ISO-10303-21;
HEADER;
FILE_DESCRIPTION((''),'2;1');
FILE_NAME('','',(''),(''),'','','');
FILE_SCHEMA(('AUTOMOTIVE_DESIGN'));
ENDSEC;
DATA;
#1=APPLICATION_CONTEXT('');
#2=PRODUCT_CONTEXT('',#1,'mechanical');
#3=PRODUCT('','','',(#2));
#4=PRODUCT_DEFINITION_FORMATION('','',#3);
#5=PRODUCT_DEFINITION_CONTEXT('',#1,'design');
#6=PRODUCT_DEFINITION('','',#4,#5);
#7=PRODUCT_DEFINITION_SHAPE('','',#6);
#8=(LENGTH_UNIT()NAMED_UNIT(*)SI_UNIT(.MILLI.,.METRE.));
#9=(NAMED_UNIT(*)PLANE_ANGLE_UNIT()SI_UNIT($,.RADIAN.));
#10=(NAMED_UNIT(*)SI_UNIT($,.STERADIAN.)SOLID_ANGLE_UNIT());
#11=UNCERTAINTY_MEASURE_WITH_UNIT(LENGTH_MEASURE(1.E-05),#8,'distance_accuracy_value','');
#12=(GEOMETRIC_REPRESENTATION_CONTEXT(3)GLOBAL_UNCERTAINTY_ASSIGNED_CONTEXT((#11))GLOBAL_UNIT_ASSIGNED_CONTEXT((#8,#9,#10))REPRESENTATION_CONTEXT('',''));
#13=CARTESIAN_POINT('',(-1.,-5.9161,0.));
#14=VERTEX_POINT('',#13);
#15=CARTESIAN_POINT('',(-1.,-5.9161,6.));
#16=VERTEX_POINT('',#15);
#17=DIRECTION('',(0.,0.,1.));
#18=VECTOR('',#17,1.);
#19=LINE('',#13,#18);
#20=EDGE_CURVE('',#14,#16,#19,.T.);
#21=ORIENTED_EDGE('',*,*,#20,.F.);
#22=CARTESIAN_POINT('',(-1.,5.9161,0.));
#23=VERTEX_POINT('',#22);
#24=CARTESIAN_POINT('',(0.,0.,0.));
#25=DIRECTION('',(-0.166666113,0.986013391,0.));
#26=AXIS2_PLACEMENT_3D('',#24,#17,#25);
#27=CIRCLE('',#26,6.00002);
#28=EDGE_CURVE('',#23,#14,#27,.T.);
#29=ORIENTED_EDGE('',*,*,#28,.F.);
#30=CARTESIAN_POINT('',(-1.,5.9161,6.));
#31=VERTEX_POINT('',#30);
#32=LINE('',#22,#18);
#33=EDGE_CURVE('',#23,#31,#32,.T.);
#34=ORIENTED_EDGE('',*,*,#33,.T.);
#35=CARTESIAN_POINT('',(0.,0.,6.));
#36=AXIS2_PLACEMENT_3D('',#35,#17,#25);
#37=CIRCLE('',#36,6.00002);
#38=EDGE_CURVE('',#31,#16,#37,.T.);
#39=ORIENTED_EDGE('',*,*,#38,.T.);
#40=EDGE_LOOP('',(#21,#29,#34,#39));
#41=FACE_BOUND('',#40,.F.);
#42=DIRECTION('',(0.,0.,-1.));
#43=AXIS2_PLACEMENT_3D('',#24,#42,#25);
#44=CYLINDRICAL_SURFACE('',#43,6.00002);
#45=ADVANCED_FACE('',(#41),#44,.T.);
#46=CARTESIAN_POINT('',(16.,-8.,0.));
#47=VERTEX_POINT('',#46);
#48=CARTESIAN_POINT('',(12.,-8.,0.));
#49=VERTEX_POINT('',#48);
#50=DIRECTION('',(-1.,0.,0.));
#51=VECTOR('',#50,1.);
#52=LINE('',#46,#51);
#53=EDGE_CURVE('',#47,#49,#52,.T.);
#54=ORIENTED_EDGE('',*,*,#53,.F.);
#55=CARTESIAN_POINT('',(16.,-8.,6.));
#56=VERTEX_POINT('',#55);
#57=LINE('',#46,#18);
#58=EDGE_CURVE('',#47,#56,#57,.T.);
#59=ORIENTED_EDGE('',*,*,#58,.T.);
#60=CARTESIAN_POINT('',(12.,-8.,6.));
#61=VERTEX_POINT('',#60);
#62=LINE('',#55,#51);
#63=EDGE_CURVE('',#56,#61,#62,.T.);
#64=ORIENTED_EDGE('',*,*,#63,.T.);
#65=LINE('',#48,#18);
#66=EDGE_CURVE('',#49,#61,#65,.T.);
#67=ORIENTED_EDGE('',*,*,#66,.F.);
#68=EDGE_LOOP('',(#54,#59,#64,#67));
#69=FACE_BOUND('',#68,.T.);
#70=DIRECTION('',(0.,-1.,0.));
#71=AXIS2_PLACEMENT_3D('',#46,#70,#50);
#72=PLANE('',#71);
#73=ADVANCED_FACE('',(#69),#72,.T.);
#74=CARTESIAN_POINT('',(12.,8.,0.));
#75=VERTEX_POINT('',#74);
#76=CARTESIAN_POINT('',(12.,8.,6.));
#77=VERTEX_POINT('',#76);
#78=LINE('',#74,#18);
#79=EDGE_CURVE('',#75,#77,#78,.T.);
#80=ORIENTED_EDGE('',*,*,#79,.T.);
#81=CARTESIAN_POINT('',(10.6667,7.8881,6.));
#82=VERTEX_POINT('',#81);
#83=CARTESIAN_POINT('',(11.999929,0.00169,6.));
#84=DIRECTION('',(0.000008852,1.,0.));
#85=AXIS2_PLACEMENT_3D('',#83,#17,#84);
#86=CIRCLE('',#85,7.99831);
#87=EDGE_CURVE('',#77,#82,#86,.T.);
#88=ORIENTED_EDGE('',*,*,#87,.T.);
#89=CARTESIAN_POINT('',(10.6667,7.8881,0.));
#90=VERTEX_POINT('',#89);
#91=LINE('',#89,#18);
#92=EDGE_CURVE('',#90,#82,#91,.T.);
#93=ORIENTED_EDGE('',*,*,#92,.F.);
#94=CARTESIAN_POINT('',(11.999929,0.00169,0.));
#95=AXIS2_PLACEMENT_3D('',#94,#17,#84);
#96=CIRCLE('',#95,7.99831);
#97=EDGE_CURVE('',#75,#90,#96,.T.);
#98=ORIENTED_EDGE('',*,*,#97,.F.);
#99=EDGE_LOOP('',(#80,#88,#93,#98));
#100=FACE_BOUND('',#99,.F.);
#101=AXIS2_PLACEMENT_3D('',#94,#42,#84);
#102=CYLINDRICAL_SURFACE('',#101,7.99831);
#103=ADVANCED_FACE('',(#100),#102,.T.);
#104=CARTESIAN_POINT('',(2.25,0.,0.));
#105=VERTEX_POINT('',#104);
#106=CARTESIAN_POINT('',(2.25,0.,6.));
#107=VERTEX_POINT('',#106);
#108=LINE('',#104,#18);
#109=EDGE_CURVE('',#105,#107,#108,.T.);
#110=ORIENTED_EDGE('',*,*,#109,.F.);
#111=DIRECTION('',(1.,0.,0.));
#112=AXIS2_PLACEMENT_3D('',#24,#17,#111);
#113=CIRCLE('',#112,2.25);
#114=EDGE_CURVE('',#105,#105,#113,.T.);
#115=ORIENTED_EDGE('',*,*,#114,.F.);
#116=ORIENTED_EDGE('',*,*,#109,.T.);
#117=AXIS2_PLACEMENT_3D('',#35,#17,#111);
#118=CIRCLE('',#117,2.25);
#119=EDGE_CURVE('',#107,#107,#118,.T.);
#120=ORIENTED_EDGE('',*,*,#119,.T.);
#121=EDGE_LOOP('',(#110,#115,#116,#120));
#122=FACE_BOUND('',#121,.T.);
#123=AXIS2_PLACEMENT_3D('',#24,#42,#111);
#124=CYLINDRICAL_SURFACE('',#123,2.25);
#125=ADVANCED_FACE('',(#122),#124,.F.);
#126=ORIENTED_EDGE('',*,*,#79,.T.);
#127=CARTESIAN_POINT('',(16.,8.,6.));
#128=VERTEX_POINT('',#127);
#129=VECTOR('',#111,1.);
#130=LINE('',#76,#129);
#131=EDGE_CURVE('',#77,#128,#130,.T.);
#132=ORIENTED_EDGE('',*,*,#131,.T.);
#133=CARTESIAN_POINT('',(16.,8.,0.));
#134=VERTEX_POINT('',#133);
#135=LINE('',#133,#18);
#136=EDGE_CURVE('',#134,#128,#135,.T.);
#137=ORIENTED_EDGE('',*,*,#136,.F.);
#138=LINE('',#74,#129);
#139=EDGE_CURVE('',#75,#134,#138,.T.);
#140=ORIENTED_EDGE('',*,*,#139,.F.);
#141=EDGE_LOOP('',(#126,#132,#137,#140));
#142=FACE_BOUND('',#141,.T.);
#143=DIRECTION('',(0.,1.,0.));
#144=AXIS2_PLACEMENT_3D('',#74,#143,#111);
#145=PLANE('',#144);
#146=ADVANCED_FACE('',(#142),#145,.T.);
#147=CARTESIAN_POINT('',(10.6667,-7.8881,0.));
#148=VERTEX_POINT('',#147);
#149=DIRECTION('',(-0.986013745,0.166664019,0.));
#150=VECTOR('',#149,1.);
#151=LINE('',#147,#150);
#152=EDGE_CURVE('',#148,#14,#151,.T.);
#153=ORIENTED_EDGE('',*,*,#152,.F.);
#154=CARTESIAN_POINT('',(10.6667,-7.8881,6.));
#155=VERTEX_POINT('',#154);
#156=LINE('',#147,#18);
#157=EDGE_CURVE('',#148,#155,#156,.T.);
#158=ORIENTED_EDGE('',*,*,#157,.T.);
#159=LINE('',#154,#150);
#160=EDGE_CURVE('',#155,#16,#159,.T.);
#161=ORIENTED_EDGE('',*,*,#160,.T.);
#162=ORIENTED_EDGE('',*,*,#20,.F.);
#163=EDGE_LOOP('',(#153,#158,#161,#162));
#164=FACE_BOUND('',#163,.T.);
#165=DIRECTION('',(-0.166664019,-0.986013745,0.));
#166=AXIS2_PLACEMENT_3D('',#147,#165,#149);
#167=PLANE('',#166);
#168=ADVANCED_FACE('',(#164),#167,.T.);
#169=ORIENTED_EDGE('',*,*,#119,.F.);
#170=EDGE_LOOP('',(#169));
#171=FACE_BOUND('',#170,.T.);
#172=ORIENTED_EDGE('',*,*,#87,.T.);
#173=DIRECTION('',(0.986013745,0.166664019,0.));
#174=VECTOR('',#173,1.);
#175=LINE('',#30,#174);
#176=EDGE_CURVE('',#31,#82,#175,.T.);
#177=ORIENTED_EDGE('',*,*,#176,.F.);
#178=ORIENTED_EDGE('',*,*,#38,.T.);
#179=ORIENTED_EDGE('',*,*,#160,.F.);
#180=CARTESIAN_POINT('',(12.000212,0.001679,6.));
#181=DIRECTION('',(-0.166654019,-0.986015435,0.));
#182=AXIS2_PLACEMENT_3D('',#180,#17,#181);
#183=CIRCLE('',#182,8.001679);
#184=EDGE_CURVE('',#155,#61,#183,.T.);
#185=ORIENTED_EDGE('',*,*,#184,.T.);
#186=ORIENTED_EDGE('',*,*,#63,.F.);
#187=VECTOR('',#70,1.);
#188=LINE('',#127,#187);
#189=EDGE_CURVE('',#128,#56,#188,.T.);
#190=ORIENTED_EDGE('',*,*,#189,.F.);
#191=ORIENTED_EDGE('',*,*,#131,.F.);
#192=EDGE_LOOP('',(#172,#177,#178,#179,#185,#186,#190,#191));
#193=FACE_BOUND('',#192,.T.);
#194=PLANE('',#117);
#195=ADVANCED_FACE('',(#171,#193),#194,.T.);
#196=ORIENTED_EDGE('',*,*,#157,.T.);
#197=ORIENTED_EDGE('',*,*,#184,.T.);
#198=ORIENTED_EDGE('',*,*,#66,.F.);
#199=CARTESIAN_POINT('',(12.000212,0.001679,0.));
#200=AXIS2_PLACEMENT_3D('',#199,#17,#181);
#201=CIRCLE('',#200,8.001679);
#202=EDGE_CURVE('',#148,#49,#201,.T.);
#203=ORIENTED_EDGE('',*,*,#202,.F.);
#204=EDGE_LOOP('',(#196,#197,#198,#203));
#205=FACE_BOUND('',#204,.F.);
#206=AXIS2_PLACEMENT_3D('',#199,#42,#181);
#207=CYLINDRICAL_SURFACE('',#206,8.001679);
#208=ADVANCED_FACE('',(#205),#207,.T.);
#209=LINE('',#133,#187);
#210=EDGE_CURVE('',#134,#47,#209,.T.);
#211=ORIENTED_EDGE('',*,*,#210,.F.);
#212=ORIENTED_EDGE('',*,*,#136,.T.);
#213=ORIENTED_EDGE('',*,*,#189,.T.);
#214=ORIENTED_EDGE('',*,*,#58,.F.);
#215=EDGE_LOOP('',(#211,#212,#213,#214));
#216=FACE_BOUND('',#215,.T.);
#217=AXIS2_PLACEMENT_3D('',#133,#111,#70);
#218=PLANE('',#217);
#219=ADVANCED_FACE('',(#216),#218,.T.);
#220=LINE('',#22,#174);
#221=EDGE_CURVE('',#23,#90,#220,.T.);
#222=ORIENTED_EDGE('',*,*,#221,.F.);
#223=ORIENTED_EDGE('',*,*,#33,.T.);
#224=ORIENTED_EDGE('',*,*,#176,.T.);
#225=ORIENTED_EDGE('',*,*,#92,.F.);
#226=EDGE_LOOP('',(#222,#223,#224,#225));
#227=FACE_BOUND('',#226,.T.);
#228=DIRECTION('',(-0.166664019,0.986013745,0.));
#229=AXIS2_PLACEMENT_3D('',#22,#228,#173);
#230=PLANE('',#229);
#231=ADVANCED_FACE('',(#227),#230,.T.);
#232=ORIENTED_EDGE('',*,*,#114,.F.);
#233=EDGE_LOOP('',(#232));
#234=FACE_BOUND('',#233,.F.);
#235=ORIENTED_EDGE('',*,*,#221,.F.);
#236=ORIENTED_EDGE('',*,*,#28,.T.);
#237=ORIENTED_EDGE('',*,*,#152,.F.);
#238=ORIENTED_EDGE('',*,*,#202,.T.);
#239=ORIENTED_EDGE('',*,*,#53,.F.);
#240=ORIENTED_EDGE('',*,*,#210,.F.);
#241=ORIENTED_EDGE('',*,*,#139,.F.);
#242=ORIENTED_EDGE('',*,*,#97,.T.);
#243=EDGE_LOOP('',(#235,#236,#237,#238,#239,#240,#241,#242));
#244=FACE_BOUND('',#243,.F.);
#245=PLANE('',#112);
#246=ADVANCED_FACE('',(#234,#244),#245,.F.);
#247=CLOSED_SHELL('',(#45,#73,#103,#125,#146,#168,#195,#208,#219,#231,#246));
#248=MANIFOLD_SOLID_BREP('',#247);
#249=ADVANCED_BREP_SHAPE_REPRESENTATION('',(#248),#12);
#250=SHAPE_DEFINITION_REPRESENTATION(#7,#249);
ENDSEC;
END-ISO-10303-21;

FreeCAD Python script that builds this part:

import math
import FreeCAD as App
import Part
import Sketcher
from FreeCAD import Vector

doc = App.newDocument("Part")
body = doc.addObject("PartDesign::Body", "Body")

sketch1 = doc.addObject("Sketcher::SketchObject", "Sketch")
body.addObject(sketch1)
sketch1.AttachmentSupport = (doc.XY_Plane, [""])
sketch1.MapMode = "FlatFace"
sketch1.addGeometry([
    Part.LineSegment(Vector(10.6667, 7.8881, 0), Vector(-1, 5.9161, 0)),
    Part.ArcOfCircle(Part.Circle(Vector(0, 0, 0), Vector(0, 0, 1), 6.00002), math.radians(99.594036), math.radians(260.405964)),
    Part.LineSegment(Vector(-1, -5.9161, 0), Vector(10.6667, -7.8881, 0)),
    Part.ArcOfCircle(Part.Circle(Vector(12.000212, 0.001679, 0), Vector(0, 0, 1), 8.001679), math.radians(-99.593333), math.radians(-90.001518)),
    Part.LineSegment(Vector(12, -8, 0), Vector(16, -8, 0)),
    Part.LineSegment(Vector(16, -8, 0), Vector(16, 8, 0)),
    Part.LineSegment(Vector(16, 8, 0), Vector(12, 8, 0)),
    Part.ArcOfCircle(Part.Circle(Vector(11.999929, 0.00169, 0), Vector(0, 0, 1), 7.99831), math.radians(89.999493), math.radians(99.595358)),
    Part.Circle(Vector(0, 0, 0), Vector(0, 0, 1), 2.25),
], False)
sketch1.addConstraint([
    Sketcher.Constraint("Tangent", 0, 2, 1, 1),
    Sketcher.Constraint("Tangent", 1, 2, 2, 1),
    Sketcher.Constraint("Tangent", 2, 2, 3, 1),
    Sketcher.Constraint("Tangent", 3, 2, 4, 1),
    Sketcher.Constraint("Coincident", 4, 2, 5, 1),
    Sketcher.Constraint("Coincident", 5, 2, 6, 1),
    Sketcher.Constraint("Tangent", 6, 2, 7, 1),
    Sketcher.Constraint("Tangent", 7, 2, 0, 1),
    Sketcher.Constraint("Horizontal", 4),
    Sketcher.Constraint("Vertical", 5),
    Sketcher.Constraint("Horizontal", 6),
    Sketcher.Constraint("Coincident", 1, 3, -1, 1),
    Sketcher.Constraint("Coincident", 8, 3, -1, 1),
    Sketcher.Constraint("Coincident", 7, 3, 3, 3),
    Sketcher.Constraint("Symmetric", 2, 2, 7, 2, -1),
    Sketcher.Constraint("Radius", 1, 6.0),
    Sketcher.Constraint("Diameter", 8, 4.5),
    Sketcher.Constraint("DistanceX", 4, 1, 4, 2, 4.0),
    Sketcher.Constraint("DistanceX", -1, 1, 7, 3, 12.0),
    Sketcher.Constraint("DistanceY", 3, 2, -1, 1, 8.0),
])
pad1 = doc.addObject("PartDesign::Pad", "Pad")
body.addObject(pad1)
pad1.Profile = sketch1
pad1.Length = 6

doc.recompute()
